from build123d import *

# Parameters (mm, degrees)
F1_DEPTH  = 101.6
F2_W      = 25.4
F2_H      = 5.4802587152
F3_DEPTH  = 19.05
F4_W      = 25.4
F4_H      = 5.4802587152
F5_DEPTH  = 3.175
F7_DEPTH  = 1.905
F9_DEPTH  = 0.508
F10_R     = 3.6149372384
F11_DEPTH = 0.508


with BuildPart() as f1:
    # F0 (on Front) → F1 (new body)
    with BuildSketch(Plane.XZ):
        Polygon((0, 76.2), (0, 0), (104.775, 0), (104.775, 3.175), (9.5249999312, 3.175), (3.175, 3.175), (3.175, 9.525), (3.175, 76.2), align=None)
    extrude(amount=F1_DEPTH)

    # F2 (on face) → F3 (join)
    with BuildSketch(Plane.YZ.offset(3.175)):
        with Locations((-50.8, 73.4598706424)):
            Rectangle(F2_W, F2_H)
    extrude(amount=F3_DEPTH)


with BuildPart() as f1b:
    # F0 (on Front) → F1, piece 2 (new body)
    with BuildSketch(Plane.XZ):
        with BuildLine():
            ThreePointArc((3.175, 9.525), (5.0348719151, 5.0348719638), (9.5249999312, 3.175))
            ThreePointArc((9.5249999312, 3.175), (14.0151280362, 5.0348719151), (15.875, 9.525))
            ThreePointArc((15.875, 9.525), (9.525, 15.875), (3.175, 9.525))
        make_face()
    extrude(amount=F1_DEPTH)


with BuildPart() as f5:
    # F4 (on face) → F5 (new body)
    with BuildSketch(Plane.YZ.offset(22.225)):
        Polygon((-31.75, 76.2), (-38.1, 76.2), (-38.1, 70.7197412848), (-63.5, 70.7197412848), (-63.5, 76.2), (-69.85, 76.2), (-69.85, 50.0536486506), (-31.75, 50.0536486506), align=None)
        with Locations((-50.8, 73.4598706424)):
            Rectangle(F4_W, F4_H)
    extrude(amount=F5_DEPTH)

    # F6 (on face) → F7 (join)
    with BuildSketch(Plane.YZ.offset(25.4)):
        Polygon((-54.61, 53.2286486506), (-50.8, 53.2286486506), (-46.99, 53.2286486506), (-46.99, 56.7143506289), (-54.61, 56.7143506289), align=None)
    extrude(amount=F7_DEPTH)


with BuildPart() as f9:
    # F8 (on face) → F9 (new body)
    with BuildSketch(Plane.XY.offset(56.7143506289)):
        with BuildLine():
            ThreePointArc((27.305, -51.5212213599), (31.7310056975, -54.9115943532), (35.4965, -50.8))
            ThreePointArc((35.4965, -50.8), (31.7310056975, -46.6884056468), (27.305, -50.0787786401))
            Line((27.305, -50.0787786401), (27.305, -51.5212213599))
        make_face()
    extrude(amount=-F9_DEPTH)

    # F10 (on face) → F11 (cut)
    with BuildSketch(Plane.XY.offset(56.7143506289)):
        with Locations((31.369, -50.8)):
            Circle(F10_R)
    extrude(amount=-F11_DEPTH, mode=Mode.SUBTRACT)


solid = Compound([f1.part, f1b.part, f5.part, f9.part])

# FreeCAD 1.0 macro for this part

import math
import FreeCAD as App
import Part
import Sketcher
from FreeCAD import Vector
Q = App.Units.Quantity

doc = App.newDocument("Part")
body = doc.addObject("PartDesign::Body", "Body")

# Sketch on XZ plane
sketch1 = doc.addObject("Sketcher::SketchObject", "Sketch")
body.addObject(sketch1)
sketch1.AttachmentSupport = (doc.XZ_Plane, [""])
sketch1.MapMode = "FlatFace"
sketch1.addGeometry([
    Part.LineSegment(Vector(0, 76.2, 0), Vector(0, 0, 0)),  # 0
    Part.LineSegment(Vector(0, 0, 0), Vector(104.775, 0, 0)),  # 1
    Part.LineSegment(Vector(104.775, 0, 0), Vector(104.775, 3.175, 0)),  # 2
    Part.LineSegment(Vector(104.775, 3.175, 0), Vector(3.175, 3.175, 0)),  # 3
    Part.LineSegment(Vector(3.175, 3.175, 0), Vector(3.175, 76.2, 0)),  # 4
    Part.LineSegment(Vector(3.175, 76.2, 0), Vector(0, 76.2, 0)),  # 5
], False)
sketch1.addConstraint([
    Sketcher.Constraint("Coincident", 0, 2, 1, 1),
    Sketcher.Constraint("Coincident", 1, 2, 2, 1),
    Sketcher.Constraint("Coincident", 2, 2, 3, 1),
    Sketcher.Constraint("Coincident", 3, 2, 4, 1),
    Sketcher.Constraint("Coincident", 4, 2, 5, 1),
    Sketcher.Constraint("Coincident", 5, 2, 0, 1),
    Sketcher.Constraint("Vertical", 0),
    Sketcher.Constraint("Horizontal", 1),
    Sketcher.Constraint("Vertical", 2),
    Sketcher.Constraint("Horizontal", 3),
    Sketcher.Constraint("Vertical", 4),
    Sketcher.Constraint("Horizontal", 5),
    Sketcher.Constraint("Coincident", 0, 2, -1, 1),
    Sketcher.Constraint("Equal", 5, 2),
    Sketcher.Constraint("DistanceX", 3, 2, 3, 1, Q("4 in")),
    Sketcher.Constraint("DistanceY", 0, 2, 0, 1, Q("3 in")),
    Sketcher.Constraint("DistanceX", 1, 1, 1, 2, Q("4.125 in")),
])
pad1 = doc.addObject("PartDesign::Pad", "Pad")
body.addObject(pad1)
pad1.Profile = sketch1
pad1.Length = Q("4 in")

# Sketch on YZ plane
sketch2 = doc.addObject("Sketcher::SketchObject", "Sketch001")
body.addObject(sketch2)
sketch2.AttachmentSupport = (doc.YZ_Plane, [""])
sketch2.MapMode = "FlatFace"
sketch2.AttachmentOffset = App.Placement(Vector(0, 0, 0.125 * 25.4), App.Rotation())
sketch2.addGeometry([
    Part.LineSegment(Vector(-63.5, 76.2, 0), Vector(-63.5, 70.719741, 0)),
    Part.LineSegment(Vector(-63.5, 70.719741, 0), Vector(-38.1, 70.719741, 0)),
    Part.LineSegment(Vector(-38.1, 70.719741, 0), Vector(-38.1, 76.2, 0)),
    Part.LineSegment(Vector(-38.1, 76.2, 0), Vector(-63.5, 76.2, 0)),
], False)
sketch2.addConstraint([
    Sketcher.Constraint("Coincident", 0, 2, 1, 1),
    Sketcher.Constraint("Coincident", 1, 2, 2, 1),
    Sketcher.Constraint("Coincident", 2, 2, 3, 1),
    Sketcher.Constraint("Coincident", 3, 2, 0, 1),
    Sketcher.Constraint("Vertical", 0),
    Sketcher.Constraint("Horizontal", 1),
    Sketcher.Constraint("Vertical", 2),
    Sketcher.Constraint("Horizontal", 3),
    Sketcher.Constraint("DistanceX", 1, 1, 1, 2, Q("1 in")),
    Sketcher.Constraint("DistanceY", -1, 1, 2, 2, Q("3 in")),
    Sketcher.Constraint("DistanceX", 0, 2, -1, 1, Q("2.5 in")),
    Sketcher.Constraint("DistanceY", 0, 2, 0, 1, Q("5.480259 mm")),
])
pad2 = doc.addObject("PartDesign::Pad", "Pad001")
body.addObject(pad2)
pad2.Profile = sketch2
pad2.Length = Q("0.75 in")
body2 = doc.addObject("PartDesign::Body", "Body001")

# Sketch on XZ plane
sketch3 = doc.addObject("Sketcher::SketchObject", "Sketch002")
body2.addObject(sketch3)
sketch3.AttachmentSupport = (doc.getObject("XZ_Plane001"), [""])
sketch3.MapMode = "FlatFace"
sketch3.addGeometry([
    Part.ArcOfCircle(Part.Circle(Vector(9.525, 9.525, 0), Vector(0, 0, 1), 6.35), math.radians(180), math.radians(269.999999)),
    Part.ArcOfCircle(Part.Circle(Vector(9.525, 9.525, 0), Vector(0, 0, 1), 6.35), math.radians(-90.000001), math.radians(0)),
    Part.ArcOfCircle(Part.Circle(Vector(9.525, 9.525, 0), Vector(0, 0, 1), 6.35), math.radians(0), math.radians(180)),
], False)
sketch3.addConstraint([
    Sketcher.Constraint("Tangent", 0, 2, 1, 1),
    Sketcher.Constraint("Tangent", 1, 2, 2, 1),
    Sketcher.Constraint("Tangent", 2, 2, 0, 1),
    Sketcher.Constraint("Horizontal", 2, 3, 1, 2),
    Sketcher.Constraint("Horizontal", 1, 2, 2, 2),
    Sketcher.Constraint("Vertical", 2, 3, 0, 2),
    Sketcher.Constraint("Radius", 0, Q("0.25 in")),
    Sketcher.Constraint("DistanceX", -1, 1, 0, 3, Q("0.375 in")),
    Sketcher.Constraint("DistanceY", -1, 1, 0, 3, Q("0.375 in")),
])
pad3 = doc.addObject("PartDesign::Pad", "Pad002")
body2.addObject(pad3)
pad3.Profile = sketch3
pad3.Length = Q("4 in")
body3 = doc.addObject("PartDesign::Body", "Body002")

# Sketch on YZ plane
sketch4 = doc.addObject("Sketcher::SketchObject", "Sketch003")
body3.addObject(sketch4)
sketch4.AttachmentSupport = (doc.getObject("YZ_Plane002"), [""])
sketch4.MapMode = "FlatFace"
sketch4.AttachmentOffset = App.Placement(Vector(0, 0, 0.875 * 25.4), App.Rotation())
sketch4.addGeometry([
    Part.LineSegment(Vector(-31.75, 76.2, 0), Vector(-69.85, 76.2, 0)),
    Part.LineSegment(Vector(-69.85, 76.2, 0), Vector(-69.85, 50.053649, 0)),
    Part.LineSegment(Vector(-69.85, 50.053649, 0), Vector(-31.75, 50.053649, 0)),
    Part.LineSegment(Vector(-31.75, 50.053649, 0), Vector(-31.75, 76.2, 0)),
], False)
sketch4.addConstraint([
    Sketcher.Constraint("Coincident", 0, 2, 1, 1),
    Sketcher.Constraint("Coincident", 1, 2, 2, 1),
    Sketcher.Constraint("Coincident", 2, 2, 3, 1),
    Sketcher.Constraint("Coincident", 3, 2, 0, 1),
    Sketcher.Constraint("Horizontal", 0),
    Sketcher.Constraint("Vertical", 1),
    Sketcher.Constraint("Horizontal", 2),
    Sketcher.Constraint("Vertical", 3),
    Sketcher.Constraint("DistanceX", 0, 2, 0, 1, Q("1.5 in")),
    Sketcher.Constraint("DistanceY", -1, 1, 0, 2, Q("3 in")),
    Sketcher.Constraint("DistanceX", 0, 2, -1, 1, Q("2.75 in")),
    Sketcher.Constraint("DistanceY", 1, 2, 1, 1, Q("26.146351 mm")),
])
pad4 = doc.addObject("PartDesign::Pad", "Pad003")
body3.addObject(pad4)
pad4.Profile = sketch4
pad4.Length = Q("0.125 in")

# Sketch on YZ plane
sketch5 = doc.addObject("Sketcher::SketchObject", "Sketch004")
body3.addObject(sketch5)
sketch5.AttachmentSupport = (doc.getObject("YZ_Plane002"), [""])
sketch5.MapMode = "FlatFace"
sketch5.AttachmentOffset = App.Placement(Vector(0, 0, 1 * 25.4), App.Rotation())
sketch5.addGeometry([
    Part.LineSegment(Vector(-54.61, 53.228649, 0), Vector(-46.99, 53.228649, 0)),
    Part.LineSegment(Vector(-46.99, 53.228649, 0), Vector(-46.99, 56.714351, 0)),
    Part.LineSegment(Vector(-46.99, 56.714351, 0), Vector(-54.61, 56.714351, 0)),
    Part.LineSegment(Vector(-54.61, 56.714351, 0), Vector(-54.61, 53.228649, 0)),
], False)
sketch5.addConstraint([
    Sketcher.Constraint("Coincident", 0, 2, 1, 1),
    Sketcher.Constraint("Coincident", 1, 2, 2, 1),
    Sketcher.Constraint("Coincident", 2, 2, 3, 1),
    Sketcher.Constraint("Coincident", 3, 2, 0, 1),
    Sketcher.Constraint("Horizontal", 0),
    Sketcher.Constraint("Vertical", 1),
    Sketcher.Constraint("Horizontal", 2),
    Sketcher.Constraint("Vertical", 3),
    Sketcher.Constraint("DistanceX", 0, 1, 0, 2, Q("0.3 in")),
    Sketcher.Constraint("DistanceX", 0, 2, -1, 1, Q("1.85 in")),
    Sketcher.Constraint("DistanceY", 1, 1, 1, 2, Q("3.485702 mm")),
    Sketcher.Constraint("DistanceY", -1, 1, 0, 2, Q("53.228649 mm")),
])
pad5 = doc.addObject("PartDesign::Pad", "Pad004")
body3.addObject(pad5)
pad5.Profile = sketch5
pad5.Length = Q("0.075 in")
body4 = doc.addObject("PartDesign::Body", "Body003")

# Sketch on XY plane
sketch6 = doc.addObject("Sketcher::SketchObject", "Sketch005")
body4.addObject(sketch6)
sketch6.AttachmentSupport = (doc.getObject("XY_Plane003"), [""])
sketch6.MapMode = "FlatFace"
sketch6.AttachmentOffset = App.Placement(Vector(0, 0, 56.714351), App.Rotation())
sketch6.addGeometry([
    Part.ArcOfCircle(Part.Circle(Vector(31.369, -50.8, 0), Vector(0, 0, 1), 4.1275), math.radians(-169.936726), math.radians(0)),
    Part.ArcOfCircle(Part.Circle(Vector(31.369, -50.8, 0), Vector(0, 0, 1), 4.1275), math.radians(0), math.radians(169.936726)),
    Part.LineSegment(Vector(27.305, -50.078779, 0), Vector(27.305, -51.521221, 0)),
], False)
sketch6.addConstraint([
    Sketcher.Constraint("Tangent", 0, 2, 1, 1),
    Sketcher.Constraint("Coincident", 1, 2, 2, 1),
    Sketcher.Constraint("Coincident", 2, 2, 0, 1),
    Sketcher.Constraint("Vertical", 2),
    Sketcher.Constraint("Equal", 0, 1),
    Sketcher.Constraint("Horizontal", 1, 3, 0, 2),
    Sketcher.Constraint("DistanceY", 0, 3, -1, 1, Q("2 in")),
    Sketcher.Constraint("Radius", 0, Q("0.1625 in")),
    Sketcher.Constraint("DistanceX", 1, 2, 0, 3, Q("0.16 in")),
    Sketcher.Constraint("DistanceX", -1, 1, 0, 3, Q("1.235 in")),
])
pad6 = doc.addObject("PartDesign::Pad", "Pad005")
body4.addObject(pad6)
pad6.Profile = sketch6
pad6.Length = Q("0.02 in")
pad6.Reversed = True

# Sketch on XY plane
sketch7 = doc.addObject("Sketcher::SketchObject", "Sketch006")
body4.addObject(sketch7)
sketch7.AttachmentSupport = (doc.getObject("XY_Plane003"), [""])
sketch7.MapMode = "FlatFace"
sketch7.AttachmentOffset = App.Placement(Vector(0, 0, 56.714351), App.Rotation())
sketch7.addGeometry(Part.Circle(Vector(31.369, -50.8, 0), Vector(0, 0, 1), 3.614937), False)
sketch7.addConstraint([
    Sketcher.Constraint("DistanceY", 0, 3, -1, 1, Q("2 in")),
    Sketcher.Constraint("DistanceX", -1, 1, 0, 3, Q("1.235 in")),
    Sketcher.Constraint("Diameter", 0, Q("7.229874 mm")),
])
pocket1 = doc.addObject("PartDesign::Pocket", "Pocket")
body4.addObject(pocket1)
pocket1.Profile = sketch7
pocket1.Length = Q("0.02 in")

doc.recompute()
